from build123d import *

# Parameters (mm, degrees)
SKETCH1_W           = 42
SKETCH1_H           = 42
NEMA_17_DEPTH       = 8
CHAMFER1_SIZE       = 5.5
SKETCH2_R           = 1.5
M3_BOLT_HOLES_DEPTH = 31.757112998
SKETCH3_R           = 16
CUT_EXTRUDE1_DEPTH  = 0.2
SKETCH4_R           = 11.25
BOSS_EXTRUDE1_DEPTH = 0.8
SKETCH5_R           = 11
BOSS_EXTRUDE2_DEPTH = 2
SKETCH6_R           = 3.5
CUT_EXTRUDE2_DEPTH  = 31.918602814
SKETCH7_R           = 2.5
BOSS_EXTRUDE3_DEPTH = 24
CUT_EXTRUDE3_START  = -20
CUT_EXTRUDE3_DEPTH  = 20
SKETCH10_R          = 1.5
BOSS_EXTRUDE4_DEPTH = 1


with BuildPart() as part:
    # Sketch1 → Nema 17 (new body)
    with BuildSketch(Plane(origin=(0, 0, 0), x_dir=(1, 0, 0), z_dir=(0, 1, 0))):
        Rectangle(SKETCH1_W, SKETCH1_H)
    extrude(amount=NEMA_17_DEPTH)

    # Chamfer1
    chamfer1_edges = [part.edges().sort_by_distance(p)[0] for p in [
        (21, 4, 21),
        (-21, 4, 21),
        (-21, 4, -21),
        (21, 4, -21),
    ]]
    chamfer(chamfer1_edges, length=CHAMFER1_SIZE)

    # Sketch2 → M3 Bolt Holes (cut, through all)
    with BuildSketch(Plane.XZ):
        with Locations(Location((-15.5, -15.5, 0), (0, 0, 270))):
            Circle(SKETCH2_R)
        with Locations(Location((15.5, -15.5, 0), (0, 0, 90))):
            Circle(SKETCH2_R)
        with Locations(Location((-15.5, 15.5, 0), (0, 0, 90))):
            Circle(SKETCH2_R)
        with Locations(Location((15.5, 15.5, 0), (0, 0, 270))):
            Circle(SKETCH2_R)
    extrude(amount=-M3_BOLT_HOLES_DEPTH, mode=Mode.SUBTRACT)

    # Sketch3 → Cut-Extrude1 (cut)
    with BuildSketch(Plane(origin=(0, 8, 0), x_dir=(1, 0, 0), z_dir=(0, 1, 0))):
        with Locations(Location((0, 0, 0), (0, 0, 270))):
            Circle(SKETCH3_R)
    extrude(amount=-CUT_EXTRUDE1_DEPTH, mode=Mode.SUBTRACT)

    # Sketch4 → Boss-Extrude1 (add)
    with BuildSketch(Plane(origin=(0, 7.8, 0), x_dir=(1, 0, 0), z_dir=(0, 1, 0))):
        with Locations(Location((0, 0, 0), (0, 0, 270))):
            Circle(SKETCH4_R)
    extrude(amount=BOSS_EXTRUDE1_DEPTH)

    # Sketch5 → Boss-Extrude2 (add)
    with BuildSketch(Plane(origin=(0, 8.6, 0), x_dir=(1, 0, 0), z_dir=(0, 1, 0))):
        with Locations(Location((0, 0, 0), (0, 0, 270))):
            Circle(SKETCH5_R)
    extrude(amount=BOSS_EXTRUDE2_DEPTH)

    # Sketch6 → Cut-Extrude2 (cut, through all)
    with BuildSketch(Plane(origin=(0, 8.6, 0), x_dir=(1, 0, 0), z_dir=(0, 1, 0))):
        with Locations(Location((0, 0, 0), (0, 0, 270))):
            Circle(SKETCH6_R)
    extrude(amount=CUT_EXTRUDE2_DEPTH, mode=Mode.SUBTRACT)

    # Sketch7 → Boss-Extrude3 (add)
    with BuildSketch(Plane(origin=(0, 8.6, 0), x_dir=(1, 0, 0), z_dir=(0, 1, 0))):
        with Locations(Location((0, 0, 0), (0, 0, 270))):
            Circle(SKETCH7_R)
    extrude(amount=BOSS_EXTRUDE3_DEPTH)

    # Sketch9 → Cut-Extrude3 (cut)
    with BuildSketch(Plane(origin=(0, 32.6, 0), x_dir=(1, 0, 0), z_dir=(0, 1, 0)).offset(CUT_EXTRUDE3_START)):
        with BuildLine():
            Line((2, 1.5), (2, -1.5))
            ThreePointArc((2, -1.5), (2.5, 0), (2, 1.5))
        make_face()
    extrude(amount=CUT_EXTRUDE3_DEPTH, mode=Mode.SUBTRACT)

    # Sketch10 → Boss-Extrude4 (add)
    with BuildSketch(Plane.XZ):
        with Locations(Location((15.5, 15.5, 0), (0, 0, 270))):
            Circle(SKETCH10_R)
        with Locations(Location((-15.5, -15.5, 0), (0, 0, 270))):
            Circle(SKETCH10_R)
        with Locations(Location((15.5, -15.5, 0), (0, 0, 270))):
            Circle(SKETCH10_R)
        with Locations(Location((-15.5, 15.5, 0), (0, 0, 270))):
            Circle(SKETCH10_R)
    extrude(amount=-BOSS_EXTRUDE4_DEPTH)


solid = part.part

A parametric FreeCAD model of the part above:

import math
import FreeCAD as App
import Part
import Sketcher
Q = App.Units.Quantity


def edges_at(feature, points):
    """Names of the edges that pass closest to the given points."""
    edges = feature.Shape.Edges
    near = lambda p: min(range(len(edges)), key=lambda i: edges[i].distToShape(Part.Vertex(*p))[0])
    return sorted({f"Edge{near(p) + 1}" for p in points})

doc = App.newDocument("Part")
body = doc.addObject("PartDesign::Body", "Body")

# Sketch on XZ plane
sketch1 = body.newObject("Sketcher::SketchObject", "Sketch")
sketch1.AttachmentSupport = (doc.getObject("XZ_Plane"), [""])
sketch1.MapMode = "FlatFace"
sketch1.addGeometry([
    Part.LineSegment(App.Vector(-21, -21, 0), App.Vector(-21, 21, 0)),
    Part.LineSegment(App.Vector(-21, 21, 0), App.Vector(21, 21, 0)),
    Part.LineSegment(App.Vector(21, 21, 0), App.Vector(21, -21, 0)),
    Part.LineSegment(App.Vector(21, -21, 0), App.Vector(-21, -21, 0)),
], False)
sketch1.addConstraint([
    Sketcher.Constraint("Coincident", 0, 2, 1, 1),
    Sketcher.Constraint("Coincident", 1, 2, 2, 1),
    Sketcher.Constraint("Coincident", 2, 2, 3, 1),
    Sketcher.Constraint("Coincident", 3, 2, 0, 1),
    Sketcher.Constraint("Vertical", 0),
    Sketcher.Constraint("Horizontal", 1),
    Sketcher.Constraint("Vertical", 2),
    Sketcher.Constraint("Horizontal", 3),
    Sketcher.Constraint("Symmetric", 0, 2, 2, 2, -1, 1),
    Sketcher.Constraint("Equal", 3, 0),
    Sketcher.Constraint("DistanceX", 1, 1, 1, 2, Q("42 mm")),
])
pad1 = body.newObject("PartDesign::Pad", "Pad")
pad1.Profile = sketch1
pad1.Length = 8
pad1.Reversed = True
doc.recompute()

chamfer = body.newObject("PartDesign::Chamfer", "Chamfer")
chamfer.Base = (pad1, edges_at(pad1, [
    (21, 4, 21),
    (-21, 4, 21),
    (-21, 4, -21),
    (21, 4, -21),
]))
chamfer.Size = 5.5

# Sketch on XZ plane
sketch2 = body.newObject("Sketcher::SketchObject", "Sketch001")
sketch2.AttachmentSupport = (doc.getObject("XZ_Plane"), [""])
sketch2.MapMode = "FlatFace"
sketch2.addGeometry([
    Part.Circle(App.Vector(-15.5, -15.5, 0), App.Vector(0, 0, 1), 1.5),
    Part.Circle(App.Vector(15.5, -15.5, 0), App.Vector(0, 0, 1), 1.5),
    Part.Circle(App.Vector(-15.5, 15.5, 0), App.Vector(0, 0, 1), 1.5),
    Part.Circle(App.Vector(15.5, 15.5, 0), App.Vector(0, 0, 1), 1.5),
], False)
sketch2.addConstraint([
    Sketcher.Constraint("Equal", 0, 1),
    Sketcher.Constraint("Equal", 1, 2),
    Sketcher.Constraint("Equal", 2, 3),
    Sketcher.Constraint("Symmetric", 1, 3, 2, 3, -1, 1),
    Sketcher.Constraint("Symmetric", 0, 3, 3, 3, -1, 1),
    Sketcher.Constraint("Symmetric", 0, 3, 1, 3, -2),
    Sketcher.Constraint("Diameter", 0, Q("3 mm")),
    Sketcher.Constraint("DistanceX", 0, 3, 1, 3, Q("31 mm")),
    Sketcher.Constraint("DistanceY", 0, 3, 2, 3, Q("31 mm")),
])
pocket1 = body.newObject("PartDesign::Pocket", "Pocket")
pocket1.Profile = sketch2
pocket1.Type = "ThroughAll"

# Sketch on XZ plane
sketch3 = body.newObject("Sketcher::SketchObject", "Sketch002")
sketch3.AttachmentSupport = (doc.getObject("XZ_Plane"), [""])
sketch3.MapMode = "FlatFace"
sketch3.AttachmentOffset = App.Placement(App.Vector(0, 0, -8), App.Rotation())
sketch3.addGeometry(Part.Circle(App.Vector(0, 0, 0), App.Vector(0, 0, 1), 16), False)
sketch3.addConstraint([
    Sketcher.Constraint("Coincident", 0, 3, -1, 1),
    Sketcher.Constraint("Diameter", 0, Q("32 mm")),
])
pocket2 = body.newObject("PartDesign::Pocket", "Pocket001")
pocket2.Profile = sketch3
pocket2.Length = 0.2
pocket2.Reversed = True

# Sketch on XZ plane
sketch4 = body.newObject("Sketcher::SketchObject", "Sketch003")
sketch4.AttachmentSupport = (doc.getObject("XZ_Plane"), [""])
sketch4.MapMode = "FlatFace"
sketch4.AttachmentOffset = App.Placement(App.Vector(0, 0, -7.8), App.Rotation())
sketch4.addGeometry(Part.Circle(App.Vector(0, 0, 0), App.Vector(0, 0, 1), 11), False)
sketch4.addConstraint([
    Sketcher.Constraint("Coincident", 0, 3, -1, 1),
    Sketcher.Constraint("Diameter", 0, Q("22.5 mm")),
])
pad2 = body.newObject("PartDesign::Pad", "Pad001")
pad2.Profile = sketch4
pad2.Length = 0.8
pad2.Reversed = True

# Sketch on XZ plane
sketch5 = body.newObject("Sketcher::SketchObject", "Sketch004")
sketch5.AttachmentSupport = (doc.getObject("XZ_Plane"), [""])
sketch5.MapMode = "FlatFace"
sketch5.AttachmentOffset = App.Placement(App.Vector(0, 0, -8.6), App.Rotation())
sketch5.addGeometry(Part.Circle(App.Vector(0, 0, 0), App.Vector(0, 0, 1), 11), False)
sketch5.addConstraint([
    Sketcher.Constraint("Coincident", 0, 3, -1, 1),
    Sketcher.Constraint("Diameter", 0, Q("22 mm")),
])
pad3 = body.newObject("PartDesign::Pad", "Pad002")
pad3.Profile = sketch5
pad3.Length = 2
pad3.Reversed = True

# Sketch on XZ plane
sketch6 = body.newObject("Sketcher::SketchObject", "Sketch005")
sketch6.AttachmentSupport = (doc.getObject("XZ_Plane"), [""])
sketch6.MapMode = "FlatFace"
sketch6.AttachmentOffset = App.Placement(App.Vector(0, 0, -8.6), App.Rotation())
sketch6.addGeometry(Part.Circle(App.Vector(0, 0, 0), App.Vector(0, 0, 1), 3.5), False)
sketch6.addConstraint([
    Sketcher.Constraint("Coincident", 0, 3, -1, 1),
    Sketcher.Constraint("Diameter", 0, Q("7 mm")),
])
pocket3 = body.newObject("PartDesign::Pocket", "Pocket002")
pocket3.Profile = sketch6
pocket3.Type = "ThroughAll"

# Sketch on XZ plane
sketch7 = body.newObject("Sketcher::SketchObject", "Sketch006")
sketch7.AttachmentSupport = (doc.getObject("XZ_Plane"), [""])
sketch7.MapMode = "FlatFace"
sketch7.AttachmentOffset = App.Placement(App.Vector(0, 0, -8.6), App.Rotation())
sketch7.addGeometry(Part.Circle(App.Vector(0, 0, 0), App.Vector(0, 0, 1), 2.5), False)
sketch7.addConstraint([
    Sketcher.Constraint("Coincident", 0, 3, -1, 1),
    Sketcher.Constraint("Diameter", 0, Q("5 mm")),
])
pad4 = body.newObject("PartDesign::Pad", "Pad003")
pad4.Profile = sketch7
pad4.Length = 24
pad4.Reversed = True

# Sketch on XZ plane
sketch8 = body.newObject("Sketcher::SketchObject", "Sketch007")
sketch8.AttachmentSupport = (doc.getObject("XZ_Plane"), [""])
sketch8.MapMode = "FlatFace"
sketch8.AttachmentOffset = App.Placement(App.Vector(0, 0, -12.6), App.Rotation())
sketch8.addGeometry([
    Part.LineSegment(App.Vector(2, -1.5, 0), App.Vector(2, 1.5, 0)),
    Part.ArcOfCircle(Part.Circle(App.Vector(0, 0, 0), App.Vector(0, 0, 1), 2.5), math.radians(-37), math.radians(37)),
], False)
sketch8.addConstraint([
    Sketcher.Constraint("Coincident", 0, 1, 1, 1),
    Sketcher.Constraint("Coincident", 1, 2, 0, 2),
    Sketcher.Constraint("Vertical", 0),
    Sketcher.Constraint("Coincident", 1, 3, -1, 1),
    Sketcher.Constraint("Radius", 1, Q("2.5 mm")),
    Sketcher.Constraint("DistanceY", 0, 1, 0, 2, Q("3 mm")),
])
pocket4 = body.newObject("PartDesign::Pocket", "Pocket003")
pocket4.Profile = sketch8
pocket4.Length = 20

# Sketch on XZ plane
sketch9 = body.newObject("Sketcher::SketchObject", "Sketch008")
sketch9.AttachmentSupport = (doc.getObject("XZ_Plane"), [""])
sketch9.MapMode = "FlatFace"
sketch9.addGeometry([
    Part.Circle(App.Vector(15.5, 15.5, 0), App.Vector(0, 0, 1), 1.5),
    Part.Circle(App.Vector(-15.5, -15.5, 0), App.Vector(0, 0, 1), 1.5),
    Part.Circle(App.Vector(15.5, -15.5, 0), App.Vector(0, 0, 1), 1.5),
    Part.Circle(App.Vector(-15.5, 15.5, 0), App.Vector(0, 0, 1), 1.5),
], False)
sketch9.addConstraint([
    Sketcher.Constraint("Equal", 0, 1),
    Sketcher.Constraint("Equal", 1, 2),
    Sketcher.Constraint("Equal", 2, 3),
    Sketcher.Constraint("Symmetric", 0, 3, 1, 3, -1, 1),
    Sketcher.Constraint("Symmetric", 2, 3, 3, 3, -1, 1),
    Sketcher.Constraint("Symmetric", 1, 3, 2, 3, -2),
    Sketcher.Constraint("Diameter", 0, Q("3 mm")),
    Sketcher.Constraint("DistanceX", 1, 3, 0, 3, Q("31 mm")),
    Sketcher.Constraint("DistanceY", 1, 3, 0, 3, Q("31 mm")),
])
pad5 = body.newObject("PartDesign::Pad", "Pad004")
pad5.Profile = sketch9
pad5.Length = 1
pad5.Reversed = True

doc.recompute()
